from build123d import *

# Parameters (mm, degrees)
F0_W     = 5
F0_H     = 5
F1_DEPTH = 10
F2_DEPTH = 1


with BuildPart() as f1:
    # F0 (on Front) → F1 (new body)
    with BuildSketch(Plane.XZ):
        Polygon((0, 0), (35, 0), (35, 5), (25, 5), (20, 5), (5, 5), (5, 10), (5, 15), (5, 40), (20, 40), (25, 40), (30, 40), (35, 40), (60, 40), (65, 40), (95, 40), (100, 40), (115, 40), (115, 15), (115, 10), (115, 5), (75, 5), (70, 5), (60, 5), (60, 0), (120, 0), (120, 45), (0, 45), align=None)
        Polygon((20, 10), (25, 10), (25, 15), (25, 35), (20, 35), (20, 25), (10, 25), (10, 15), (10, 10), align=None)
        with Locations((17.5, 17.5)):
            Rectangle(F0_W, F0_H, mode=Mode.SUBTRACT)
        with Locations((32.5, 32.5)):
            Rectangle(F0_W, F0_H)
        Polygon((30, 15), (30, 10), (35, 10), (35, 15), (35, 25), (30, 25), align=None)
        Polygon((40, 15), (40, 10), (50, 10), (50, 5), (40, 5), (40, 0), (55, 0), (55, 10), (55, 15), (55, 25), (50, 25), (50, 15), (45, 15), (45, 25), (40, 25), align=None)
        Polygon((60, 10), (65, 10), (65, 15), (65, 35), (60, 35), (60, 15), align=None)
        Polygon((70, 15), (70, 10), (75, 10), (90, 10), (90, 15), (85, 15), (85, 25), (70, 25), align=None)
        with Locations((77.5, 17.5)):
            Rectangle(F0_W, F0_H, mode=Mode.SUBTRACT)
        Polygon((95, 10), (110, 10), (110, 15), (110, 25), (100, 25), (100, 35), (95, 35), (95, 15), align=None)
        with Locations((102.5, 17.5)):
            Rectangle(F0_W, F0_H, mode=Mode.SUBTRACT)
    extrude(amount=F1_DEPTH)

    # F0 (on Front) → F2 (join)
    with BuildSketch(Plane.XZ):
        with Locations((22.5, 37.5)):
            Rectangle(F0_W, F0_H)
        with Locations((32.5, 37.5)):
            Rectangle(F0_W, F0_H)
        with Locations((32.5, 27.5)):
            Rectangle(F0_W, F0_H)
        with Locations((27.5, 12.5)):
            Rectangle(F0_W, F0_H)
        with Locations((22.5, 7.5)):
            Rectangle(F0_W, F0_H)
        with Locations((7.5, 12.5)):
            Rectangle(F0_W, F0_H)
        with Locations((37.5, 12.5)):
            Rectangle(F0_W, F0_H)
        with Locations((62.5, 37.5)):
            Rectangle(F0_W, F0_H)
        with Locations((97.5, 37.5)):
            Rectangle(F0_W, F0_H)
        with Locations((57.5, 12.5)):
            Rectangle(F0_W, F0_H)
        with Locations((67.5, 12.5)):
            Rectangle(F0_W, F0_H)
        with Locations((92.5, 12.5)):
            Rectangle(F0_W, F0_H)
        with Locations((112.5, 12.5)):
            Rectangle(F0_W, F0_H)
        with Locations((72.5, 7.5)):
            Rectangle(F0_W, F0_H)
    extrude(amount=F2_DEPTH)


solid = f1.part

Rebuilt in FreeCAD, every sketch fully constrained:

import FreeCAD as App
import Part
import Sketcher

V = App.Vector

doc = App.newDocument("Part")
params = doc.addObject("Spreadsheet::Sheet", "Params")
for row, (alias, value) in enumerate([
    ("sketch1_width", "35 mm"),
    ("sketch1_width2", "30 mm"),
    ("sketch1_width3", "110 mm"),
    ("sketch1_width4", "55 mm"),
    ("sketch1_width5", "60 mm"),
    ("pad1_length", "10 mm"),
    ("sketch2_width", "5 mm"),
    ("pad2_length", "1 mm"),
], start=1):
    params.set(f"A{row}", alias)
    params.set(f"B{row}", "=" + value)
    params.setAlias(f"B{row}", alias)

body = doc.addObject("PartDesign::Body", "Body")
body.AllowCompound = True

sketch1 = doc.addObject("Sketcher::SketchObject", "Sketch")
body.addObject(sketch1)
sketch1.AttachmentSupport = (doc.XZ_Plane, [""])
sketch1.MapMode = "FlatFace"
sketch1.addGeometry([
    Part.LineSegment(V(0, 0, 0), V(35, 0, 0)),
    Part.LineSegment(V(35, 0, 0), V(35, 5, 0)),
    Part.LineSegment(V(35, 5, 0), V(5, 5, 0)),
    Part.LineSegment(V(5, 5, 0), V(5, 40, 0)),
    Part.LineSegment(V(5, 40, 0), V(115, 40, 0)),
    Part.LineSegment(V(115, 40, 0), V(115, 5, 0)),
    Part.LineSegment(V(115, 5, 0), V(60, 5, 0)),
    Part.LineSegment(V(60, 5, 0), V(60, 0, 0)),
    Part.LineSegment(V(60, 0, 0), V(120, 0, 0)),
    Part.LineSegment(V(120, 0, 0), V(120, 45, 0)),
    Part.LineSegment(V(120, 45, 0), V(0, 45, 0)),
    Part.LineSegment(V(0, 45, 0), V(0, 0, 0)),
    Part.LineSegment(V(25, 10, 0), V(25, 35, 0)),
    Part.LineSegment(V(25, 35, 0), V(20, 35, 0)),
    Part.LineSegment(V(20, 35, 0), V(20, 25, 0)),
    Part.LineSegment(V(20, 25, 0), V(10, 25, 0)),
    Part.LineSegment(V(10, 25, 0), V(10, 10, 0)),
    Part.LineSegment(V(10, 10, 0), V(25, 10, 0)),
    Part.LineSegment(V(20, 15, 0), V(15, 15, 0)),
    Part.LineSegment(V(15, 15, 0), V(15, 20, 0)),
    Part.LineSegment(V(15, 20, 0), V(20, 20, 0)),
    Part.LineSegment(V(20, 20, 0), V(20, 15, 0)),
    Part.LineSegment(V(30, 35, 0), V(30, 30, 0)),
    Part.LineSegment(V(30, 30, 0), V(35, 30, 0)),
    Part.LineSegment(V(35, 30, 0), V(35, 35, 0)),
    Part.LineSegment(V(35, 35, 0), V(30, 35, 0)),
    Part.LineSegment(V(30, 10, 0), V(35, 10, 0)),
    Part.LineSegment(V(35, 10, 0), V(35, 25, 0)),
    Part.LineSegment(V(35, 25, 0), V(30, 25, 0)),
    Part.LineSegment(V(30, 25, 0), V(30, 10, 0)),
    Part.LineSegment(V(40, 10, 0), V(50, 10, 0)),
    Part.LineSegment(V(50, 10, 0), V(50, 5, 0)),
    Part.LineSegment(V(50, 5, 0), V(40, 5, 0)),
    Part.LineSegment(V(40, 5, 0), V(40, 0, 0)),
    Part.LineSegment(V(40, 0, 0), V(55, 0, 0)),
    Part.LineSegment(V(55, 0, 0), V(55, 25, 0)),
    Part.LineSegment(V(55, 25, 0), V(50, 25, 0)),
    Part.LineSegment(V(50, 25, 0), V(50, 15, 0)),
    Part.LineSegment(V(50, 15, 0), V(45, 15, 0)),
    Part.LineSegment(V(45, 15, 0), V(45, 25, 0)),
    Part.LineSegment(V(45, 25, 0), V(40, 25, 0)),
    Part.LineSegment(V(40, 25, 0), V(40, 10, 0)),
    Part.LineSegment(V(60, 10, 0), V(65, 10, 0)),
    Part.LineSegment(V(65, 10, 0), V(65, 35, 0)),
    Part.LineSegment(V(65, 35, 0), V(60, 35, 0)),
    Part.LineSegment(V(60, 35, 0), V(60, 10, 0)),
    Part.LineSegment(V(70, 10, 0), V(90, 10, 0)),
    Part.LineSegment(V(90, 10, 0), V(90, 15, 0)),
    Part.LineSegment(V(90, 15, 0), V(85, 15, 0)),
    Part.LineSegment(V(85, 15, 0), V(85, 25, 0)),
    Part.LineSegment(V(85, 25, 0), V(70, 25, 0)),
    Part.LineSegment(V(70, 25, 0), V(70, 10, 0)),
    Part.LineSegment(V(80, 15, 0), V(75, 15, 0)),
    Part.LineSegment(V(75, 15, 0), V(75, 20, 0)),
    Part.LineSegment(V(75, 20, 0), V(80, 20, 0)),
    Part.LineSegment(V(80, 20, 0), V(80, 15, 0)),
    Part.LineSegment(V(95, 10, 0), V(110, 10, 0)),
    Part.LineSegment(V(110, 10, 0), V(110, 25, 0)),
    Part.LineSegment(V(110, 25, 0), V(100, 25, 0)),
    Part.LineSegment(V(100, 25, 0), V(100, 35, 0)),
    Part.LineSegment(V(100, 35, 0), V(95, 35, 0)),
    Part.LineSegment(V(95, 35, 0), V(95, 10, 0)),
    Part.LineSegment(V(105, 15, 0), V(100, 15, 0)),
    Part.LineSegment(V(100, 15, 0), V(100, 20, 0)),
    Part.LineSegment(V(100, 20, 0), V(105, 20, 0)),
    Part.LineSegment(V(105, 20, 0), V(105, 15, 0)),
], False)
sketch1.addConstraint([
    Sketcher.Constraint("Coincident", 0, 2, 1, 1),
    Sketcher.Constraint("Coincident", 1, 2, 2, 1),
    Sketcher.Constraint("Coincident", 2, 2, 3, 1),
    Sketcher.Constraint("Coincident", 3, 2, 4, 1),
    Sketcher.Constraint("Coincident", 4, 2, 5, 1),
    Sketcher.Constraint("Coincident", 5, 2, 6, 1),
    Sketcher.Constraint("Coincident", 6, 2, 7, 1),
    Sketcher.Constraint("Coincident", 7, 2, 8, 1),
    Sketcher.Constraint("Coincident", 8, 2, 9, 1),
    Sketcher.Constraint("Coincident", 9, 2, 10, 1),
    Sketcher.Constraint("Coincident", 10, 2, 11, 1),
    Sketcher.Constraint("Coincident", 11, 2, 0, 1),
    Sketcher.Constraint("Coincident", 12, 2, 13, 1),
    Sketcher.Constraint("Coincident", 13, 2, 14, 1),
    Sketcher.Constraint("Coincident", 14, 2, 15, 1),
    Sketcher.Constraint("Coincident", 15, 2, 16, 1),
    Sketcher.Constraint("Coincident", 16, 2, 17, 1),
    Sketcher.Constraint("Coincident", 17, 2, 12, 1),
    Sketcher.Constraint("Coincident", 18, 2, 19, 1),
    Sketcher.Constraint("Coincident", 19, 2, 20, 1),
    Sketcher.Constraint("Coincident", 20, 2, 21, 1),
    Sketcher.Constraint("Coincident", 21, 2, 18, 1),
    Sketcher.Constraint("Coincident", 22, 2, 23, 1),
    Sketcher.Constraint("Coincident", 23, 2, 24, 1),
    Sketcher.Constraint("Coincident", 24, 2, 25, 1),
    Sketcher.Constraint("Coincident", 25, 2, 22, 1),
    Sketcher.Constraint("Coincident", 26, 2, 27, 1),
    Sketcher.Constraint("Coincident", 27, 2, 28, 1),
    Sketcher.Constraint("Coincident", 28, 2, 29, 1),
    Sketcher.Constraint("Coincident", 29, 2, 26, 1),
    Sketcher.Constraint("Coincident", 30, 2, 31, 1),
    Sketcher.Constraint("Coincident", 31, 2, 32, 1),
    Sketcher.Constraint("Coincident", 32, 2, 33, 1),
    Sketcher.Constraint("Coincident", 33, 2, 34, 1),
    Sketcher.Constraint("Coincident", 34, 2, 35, 1),
    Sketcher.Constraint("Coincident", 35, 2, 36, 1),
    Sketcher.Constraint("Coincident", 36, 2, 37, 1),
    Sketcher.Constraint("Coincident", 37, 2, 38, 1),
    Sketcher.Constraint("Coincident", 38, 2, 39, 1),
    Sketcher.Constraint("Coincident", 39, 2, 40, 1),
    Sketcher.Constraint("Coincident", 40, 2, 41, 1),
    Sketcher.Constraint("Coincident", 41, 2, 30, 1),
    Sketcher.Constraint("Coincident", 42, 2, 43, 1),
    Sketcher.Constraint("Coincident", 43, 2, 44, 1),
    Sketcher.Constraint("Coincident", 44, 2, 45, 1),
    Sketcher.Constraint("Coincident", 45, 2, 42, 1),
    Sketcher.Constraint("Coincident", 46, 2, 47, 1),
    Sketcher.Constraint("Coincident", 47, 2, 48, 1),
    Sketcher.Constraint("Coincident", 48, 2, 49, 1),
    Sketcher.Constraint("Coincident", 49, 2, 50, 1),
    Sketcher.Constraint("Coincident", 50, 2, 51, 1),
    Sketcher.Constraint("Coincident", 51, 2, 46, 1),
    Sketcher.Constraint("Coincident", 52, 2, 53, 1),
    Sketcher.Constraint("Coincident", 53, 2, 54, 1),
    Sketcher.Constraint("Coincident", 54, 2, 55, 1),
    Sketcher.Constraint("Coincident", 55, 2, 52, 1),
    Sketcher.Constraint("Coincident", 56, 2, 57, 1),
    Sketcher.Constraint("Coincident", 57, 2, 58, 1),
    Sketcher.Constraint("Coincident", 58, 2, 59, 1),
    Sketcher.Constraint("Coincident", 59, 2, 60, 1),
    Sketcher.Constraint("Coincident", 60, 2, 61, 1),
    Sketcher.Constraint("Coincident", 61, 2, 56, 1),
    Sketcher.Constraint("Coincident", 62, 2, 63, 1),
    Sketcher.Constraint("Coincident", 63, 2, 64, 1),
    Sketcher.Constraint("Coincident", 64, 2, 65, 1),
    Sketcher.Constraint("Coincident", 65, 2, 62, 1),
    Sketcher.Constraint("Horizontal", 0),
    Sketcher.Constraint("Vertical", 1),
    Sketcher.Constraint("Horizontal", 2),
    Sketcher.Constraint("Vertical", 3),
    Sketcher.Constraint("Horizontal", 4),
    Sketcher.Constraint("Vertical", 5),
    Sketcher.Constraint("Horizontal", 6),
    Sketcher.Constraint("Vertical", 7),
    Sketcher.Constraint("Horizontal", 8),
    Sketcher.Constraint("Vertical", 9),
    Sketcher.Constraint("Horizontal", 10),
    Sketcher.Constraint("Vertical", 11),
    Sketcher.Constraint("Vertical", 12),
    Sketcher.Constraint("Horizontal", 13),
    Sketcher.Constraint("Vertical", 14),
    Sketcher.Constraint("Horizontal", 15),
    Sketcher.Constraint("Vertical", 16),
    Sketcher.Constraint("Horizontal", 17),
    Sketcher.Constraint("Horizontal", 18),
    Sketcher.Constraint("Vertical", 19),
    Sketcher.Constraint("Horizontal", 20),
    Sketcher.Constraint("Vertical", 21),
    Sketcher.Constraint("Vertical", 22),
    Sketcher.Constraint("Horizontal", 23),
    Sketcher.Constraint("Vertical", 24),
    Sketcher.Constraint("Horizontal", 25),
    Sketcher.Constraint("Horizontal", 26),
    Sketcher.Constraint("Vertical", 27),
    Sketcher.Constraint("Horizontal", 28),
    Sketcher.Constraint("Vertical", 29),
    Sketcher.Constraint("Horizontal", 30),
    Sketcher.Constraint("Vertical", 31),
    Sketcher.Constraint("Horizontal", 32),
    Sketcher.Constraint("Vertical", 33),
    Sketcher.Constraint("Horizontal", 34),
    Sketcher.Constraint("Vertical", 35),
    Sketcher.Constraint("Horizontal", 36),
    Sketcher.Constraint("Vertical", 37),
    Sketcher.Constraint("Horizontal", 38),
    Sketcher.Constraint("Vertical", 39),
    Sketcher.Constraint("Horizontal", 40),
    Sketcher.Constraint("Vertical", 41),
    Sketcher.Constraint("Horizontal", 42),
    Sketcher.Constraint("Vertical", 43),
    Sketcher.Constraint("Horizontal", 44),
    Sketcher.Constraint("Vertical", 45),
    Sketcher.Constraint("Horizontal", 46),
    Sketcher.Constraint("Vertical", 47),
    Sketcher.Constraint("Horizontal", 48),
    Sketcher.Constraint("Vertical", 49),
    Sketcher.Constraint("Horizontal", 50),
    Sketcher.Constraint("Vertical", 51),
    Sketcher.Constraint("Horizontal", 52),
    Sketcher.Constraint("Vertical", 53),
    Sketcher.Constraint("Horizontal", 54),
    Sketcher.Constraint("Vertical", 55),
    Sketcher.Constraint("Horizontal", 56),
    Sketcher.Constraint("Vertical", 57),
    Sketcher.Constraint("Horizontal", 58),
    Sketcher.Constraint("Vertical", 59),
    Sketcher.Constraint("Horizontal", 60),
    Sketcher.Constraint("Vertical", 61),
    Sketcher.Constraint("Horizontal", 62),
    Sketcher.Constraint("Vertical", 63),
    Sketcher.Constraint("Horizontal", 64),
    Sketcher.Constraint("Vertical", 65),
    Sketcher.Constraint("Coincident", 11, 2, -1, 1),
    Sketcher.Constraint("PointOnObject", 7, 2, -1),
    Sketcher.Constraint("PointOnObject", 33, 2, -1),
    Sketcher.Constraint("Horizontal", 2, 2, 5, 2),
    Sketcher.Constraint("Horizontal", 13, 2, 24, 2),
    Sketcher.Constraint("Horizontal", 17, 2, 26, 2),
    Sketcher.Constraint("Horizontal", 15, 2, 27, 2),
    Sketcher.Constraint("Horizontal", 29, 2, 30, 2),
    Sketcher.Constraint("Horizontal", 6, 2, 31, 2),
    Sketcher.Constraint("Horizontal", 28, 2, 35, 2),
    Sketcher.Constraint("Horizontal", 21, 2, 37, 2),
    Sketcher.Constraint("Horizontal", 36, 2, 39, 2),
    Sketcher.Constraint("Horizontal", 41, 2, 42, 2),
    Sketcher.Constraint("Horizontal", 25, 2, 43, 2),
    Sketcher.Constraint("Horizontal", 45, 2, 46, 2),
    Sketcher.Constraint("Horizontal", 38, 2, 47, 2),
    Sketcher.Constraint("Horizontal", 40, 2, 49, 2),
    Sketcher.Constraint("Horizontal", 48, 2, 52, 2),
    Sketcher.Constraint("Horizontal", 20, 2, 53, 2),
    Sketcher.Constraint("Horizontal", 51, 2, 56, 2),
    Sketcher.Constraint("Horizontal", 50, 2, 57, 2),
    Sketcher.Constraint("Horizontal", 44, 2, 59, 2),
    Sketcher.Constraint("Horizontal", 55, 2, 62, 2),
    Sketcher.Constraint("Horizontal", 54, 2, 63, 2),
    Sketcher.Constraint("Vertical", 14, 2, 20, 2),
    Sketcher.Constraint("Vertical", 1, 2, 23, 2),
    Sketcher.Constraint("Vertical", 24, 2, 26, 2),
    Sketcher.Constraint("Vertical", 25, 2, 28, 2),
    Sketcher.Constraint("Vertical", 31, 2, 36, 2),
    Sketcher.Constraint("Vertical", 33, 2, 40, 2),
    Sketcher.Constraint("Vertical", 7, 2, 44, 2),
    Sketcher.Constraint("Vertical", 59, 2, 62, 2),
    Sketcher.Constraint("Equal", 13, 18),
    Sketcher.Constraint("Equal", 20, 23),
    Sketcher.Constraint("Equal", 15, 30),
    Sketcher.Constraint("Equal", 17, 34),
    Sketcher.Constraint("Equal", 36, 38),
    Sketcher.Constraint("Equal", 38, 40),
    Sketcher.Constraint("Equal", 40, 42),
    Sketcher.Constraint("Equal", 44, 48),
    Sketcher.Constraint("Equal", 34, 50),
    Sketcher.Constraint("Equal", 48, 52),
    Sketcher.Constraint("Equal", 50, 56),
    Sketcher.Constraint("Equal", 32, 58),
    Sketcher.Constraint("Equal", 60, 62),
    Sketcher.Constraint("Equal", 64, 1),
    Sketcher.Constraint("Equal", 0, 3),
    Sketcher.Constraint("Equal", 58, 14),
    Sketcher.Constraint("Equal", 56, 16),
    Sketcher.Constraint("Equal", 7, 19),
    Sketcher.Constraint("Equal", 21, 22),
    Sketcher.Constraint("Equal", 24, 31),
    Sketcher.Constraint("Equal", 14, 37),
    Sketcher.Constraint("DistanceX", 0, 1, 0, 2, 35.0),
    Sketcher.Constraint("DistanceX", 2, 2, 2, 1, 30.0),
    Sketcher.Constraint("DistanceX", 4, 1, 4, 2, 110.0),
    Sketcher.Constraint("DistanceX", 6, 2, 6, 1, 55.0),
    Sketcher.Constraint("DistanceX", 8, 1, 8, 2, 60.0),
    Sketcher.Constraint("DistanceX", 13, 2, 13, 1, 5.0),
    Sketcher.Constraint("DistanceY", 9, 1, 9, 2, 45.0),
    Sketcher.Constraint("DistanceX", -1, 1, 12, 2, 25.0),
    Sketcher.Constraint("DistanceX", -1, 1, 30, 2, 50.0),
    Sketcher.Constraint("DistanceX", -1, 1, 46, 2, 90.0),
    Sketcher.Constraint("DistanceX", -1, 1, 52, 2, 75.0),
    Sketcher.Constraint("DistanceX", -1, 1, 56, 2, 110.0),
])
sketch1.setExpression("Constraints[185]", "Params.sketch1_width")
sketch1.setExpression("Constraints[186]", "Params.sketch1_width2")
sketch1.setExpression("Constraints[187]", "Params.sketch1_width3")
sketch1.setExpression("Constraints[188]", "Params.sketch1_width4")
sketch1.setExpression("Constraints[189]", "Params.sketch1_width5")
pad1 = doc.addObject("PartDesign::Pad", "Pad")
body.addObject(pad1)
pad1.Profile = sketch1
pad1.setExpression("Length", "Params.pad1_length")

sketch2 = doc.addObject("Sketcher::SketchObject", "Sketch001")
body.addObject(sketch2)
sketch2.AttachmentSupport = (doc.XZ_Plane, [""])
sketch2.MapMode = "FlatFace"
sketch2.addGeometry([
    Part.LineSegment(V(20, 40, 0), V(20, 35, 0)),
    Part.LineSegment(V(20, 35, 0), V(25, 35, 0)),
    Part.LineSegment(V(25, 35, 0), V(25, 40, 0)),
    Part.LineSegment(V(25, 40, 0), V(20, 40, 0)),
    Part.LineSegment(V(30, 40, 0), V(30, 35, 0)),
    Part.LineSegment(V(30, 35, 0), V(35, 35, 0)),
    Part.LineSegment(V(35, 35, 0), V(35, 40, 0)),
    Part.LineSegment(V(35, 40, 0), V(30, 40, 0)),
    Part.LineSegment(V(30, 30, 0), V(30, 25, 0)),
    Part.LineSegment(V(30, 25, 0), V(35, 25, 0)),
    Part.LineSegment(V(35, 25, 0), V(35, 30, 0)),
    Part.LineSegment(V(35, 30, 0), V(30, 30, 0)),
    Part.LineSegment(V(25, 15, 0), V(25, 10, 0)),
    Part.LineSegment(V(25, 10, 0), V(30, 10, 0)),
    Part.LineSegment(V(30, 10, 0), V(30, 15, 0)),
    Part.LineSegment(V(30, 15, 0), V(25, 15, 0)),
    Part.LineSegment(V(20, 10, 0), V(20, 5, 0)),
    Part.LineSegment(V(20, 5, 0), V(25, 5, 0)),
    Part.LineSegment(V(25, 5, 0), V(25, 10, 0)),
    Part.LineSegment(V(25, 10, 0), V(20, 10, 0)),
    Part.LineSegment(V(5, 15, 0), V(5, 10, 0)),
    Part.LineSegment(V(5, 10, 0), V(10, 10, 0)),
    Part.LineSegment(V(10, 10, 0), V(10, 15, 0)),
    Part.LineSegment(V(10, 15, 0), V(5, 15, 0)),
    Part.LineSegment(V(35, 15, 0), V(35, 10, 0)),
    Part.LineSegment(V(35, 10, 0), V(40, 10, 0)),
    Part.LineSegment(V(40, 10, 0), V(40, 15, 0)),
    Part.LineSegment(V(40, 15, 0), V(35, 15, 0)),
    Part.LineSegment(V(60, 40, 0), V(60, 35, 0)),
    Part.LineSegment(V(60, 35, 0), V(65, 35, 0)),
    Part.LineSegment(V(65, 35, 0), V(65, 40, 0)),
    Part.LineSegment(V(65, 40, 0), V(60, 40, 0)),
    Part.LineSegment(V(95, 40, 0), V(95, 35, 0)),
    Part.LineSegment(V(95, 35, 0), V(100, 35, 0)),
    Part.LineSegment(V(100, 35, 0), V(100, 40, 0)),
    Part.LineSegment(V(100, 40, 0), V(95, 40, 0)),
    Part.LineSegment(V(55, 15, 0), V(55, 10, 0)),
    Part.LineSegment(V(55, 10, 0), V(60, 10, 0)),
    Part.LineSegment(V(60, 10, 0), V(60, 15, 0)),
    Part.LineSegment(V(60, 15, 0), V(55, 15, 0)),
    Part.LineSegment(V(65, 15, 0), V(65, 10, 0)),
    Part.LineSegment(V(65, 10, 0), V(70, 10, 0)),
    Part.LineSegment(V(70, 10, 0), V(70, 15, 0)),
    Part.LineSegment(V(70, 15, 0), V(65, 15, 0)),
    Part.LineSegment(V(90, 15, 0), V(90, 10, 0)),
    Part.LineSegment(V(90, 10, 0), V(95, 10, 0)),
    Part.LineSegment(V(95, 10, 0), V(95, 15, 0)),
    Part.LineSegment(V(95, 15, 0), V(90, 15, 0)),
    Part.LineSegment(V(110, 15, 0), V(110, 10, 0)),
    Part.LineSegment(V(110, 10, 0), V(115, 10, 0)),
    Part.LineSegment(V(115, 10, 0), V(115, 15, 0)),
    Part.LineSegment(V(115, 15, 0), V(110, 15, 0)),
    Part.LineSegment(V(70, 10, 0), V(70, 5, 0)),
    Part.LineSegment(V(70, 5, 0), V(75, 5, 0)),
    Part.LineSegment(V(75, 5, 0), V(75, 10, 0)),
    Part.LineSegment(V(75, 10, 0), V(70, 10, 0)),
], False)
sketch2.addConstraint([
    Sketcher.Constraint("Coincident", 0, 2, 1, 1),
    Sketcher.Constraint("Coincident", 1, 2, 2, 1),
    Sketcher.Constraint("Coincident", 2, 2, 3, 1),
    Sketcher.Constraint("Coincident", 3, 2, 0, 1),
    Sketcher.Constraint("Coincident", 4, 2, 5, 1),
    Sketcher.Constraint("Coincident", 5, 2, 6, 1),
    Sketcher.Constraint("Coincident", 6, 2, 7, 1),
    Sketcher.Constraint("Coincident", 7, 2, 4, 1),
    Sketcher.Constraint("Coincident", 8, 2, 9, 1),
    Sketcher.Constraint("Coincident", 9, 2, 10, 1),
    Sketcher.Constraint("Coincident", 10, 2, 11, 1),
    Sketcher.Constraint("Coincident", 11, 2, 8, 1),
    Sketcher.Constraint("Coincident", 12, 2, 13, 1),
    Sketcher.Constraint("Coincident", 13, 2, 14, 1),
    Sketcher.Constraint("Coincident", 14, 2, 15, 1),
    Sketcher.Constraint("Coincident", 15, 2, 12, 1),
    Sketcher.Constraint("Coincident", 16, 2, 17, 1),
    Sketcher.Constraint("Coincident", 17, 2, 18, 1),
    Sketcher.Constraint("Coincident", 18, 2, 19, 1),
    Sketcher.Constraint("Coincident", 19, 2, 16, 1),
    Sketcher.Constraint("Coincident", 20, 2, 21, 1),
    Sketcher.Constraint("Coincident", 21, 2, 22, 1),
    Sketcher.Constraint("Coincident", 22, 2, 23, 1),
    Sketcher.Constraint("Coincident", 23, 2, 20, 1),
    Sketcher.Constraint("Coincident", 24, 2, 25, 1),
    Sketcher.Constraint("Coincident", 25, 2, 26, 1),
    Sketcher.Constraint("Coincident", 26, 2, 27, 1),
    Sketcher.Constraint("Coincident", 27, 2, 24, 1),
    Sketcher.Constraint("Coincident", 28, 2, 29, 1),
    Sketcher.Constraint("Coincident", 29, 2, 30, 1),
    Sketcher.Constraint("Coincident", 30, 2, 31, 1),
    Sketcher.Constraint("Coincident", 31, 2, 28, 1),
    Sketcher.Constraint("Coincident", 32, 2, 33, 1),
    Sketcher.Constraint("Coincident", 33, 2, 34, 1),
    Sketcher.Constraint("Coincident", 34, 2, 35, 1),
    Sketcher.Constraint("Coincident", 35, 2, 32, 1),
    Sketcher.Constraint("Coincident", 36, 2, 37, 1),
    Sketcher.Constraint("Coincident", 37, 2, 38, 1),
    Sketcher.Constraint("Coincident", 38, 2, 39, 1),
    Sketcher.Constraint("Coincident", 39, 2, 36, 1),
    Sketcher.Constraint("Coincident", 40, 2, 41, 1),
    Sketcher.Constraint("Coincident", 41, 2, 42, 1),
    Sketcher.Constraint("Coincident", 42, 2, 43, 1),
    Sketcher.Constraint("Coincident", 43, 2, 40, 1),
    Sketcher.Constraint("Coincident", 44, 2, 45, 1),
    Sketcher.Constraint("Coincident", 45, 2, 46, 1),
    Sketcher.Constraint("Coincident", 46, 2, 47, 1),
    Sketcher.Constraint("Coincident", 47, 2, 44, 1),
    Sketcher.Constraint("Coincident", 48, 2, 49, 1),
    Sketcher.Constraint("Coincident", 49, 2, 50, 1),
    Sketcher.Constraint("Coincident", 50, 2, 51, 1),
    Sketcher.Constraint("Coincident", 51, 2, 48, 1),
    Sketcher.Constraint("Coincident", 52, 2, 53, 1),
    Sketcher.Constraint("Coincident", 53, 2, 54, 1),
    Sketcher.Constraint("Coincident", 54, 2, 55, 1),
    Sketcher.Constraint("Coincident", 55, 2, 52, 1),
    Sketcher.Constraint("Vertical", 0),
    Sketcher.Constraint("Horizontal", 1),
    Sketcher.Constraint("Vertical", 2),
    Sketcher.Constraint("Horizontal", 3),
    Sketcher.Constraint("Vertical", 4),
    Sketcher.Constraint("Horizontal", 5),
    Sketcher.Constraint("Vertical", 6),
    Sketcher.Constraint("Horizontal", 7),
    Sketcher.Constraint("Vertical", 8),
    Sketcher.Constraint("Horizontal", 9),
    Sketcher.Constraint("Vertical", 10),
    Sketcher.Constraint("Horizontal", 11),
    Sketcher.Constraint("Vertical", 12),
    Sketcher.Constraint("Horizontal", 13),
    Sketcher.Constraint("Vertical", 14),
    Sketcher.Constraint("Horizontal", 15),
    Sketcher.Constraint("Vertical", 16),
    Sketcher.Constraint("Horizontal", 17),
    Sketcher.Constraint("Vertical", 18),
    Sketcher.Constraint("Horizontal", 19),
    Sketcher.Constraint("Vertical", 20),
    Sketcher.Constraint("Horizontal", 21),
    Sketcher.Constraint("Vertical", 22),
    Sketcher.Constraint("Horizontal", 23),
    Sketcher.Constraint("Vertical", 24),
    Sketcher.Constraint("Horizontal", 25),
    Sketcher.Constraint("Vertical", 26),
    Sketcher.Constraint("Horizontal", 27),
    Sketcher.Constraint("Vertical", 28),
    Sketcher.Constraint("Horizontal", 29),
    Sketcher.Constraint("Vertical", 30),
    Sketcher.Constraint("Horizontal", 31),
    Sketcher.Constraint("Vertical", 32),
    Sketcher.Constraint("Horizontal", 33),
    Sketcher.Constraint("Vertical", 34),
    Sketcher.Constraint("Horizontal", 35),
    Sketcher.Constraint("Vertical", 36),
    Sketcher.Constraint("Horizontal", 37),
    Sketcher.Constraint("Vertical", 38),
    Sketcher.Constraint("Horizontal", 39),
    Sketcher.Constraint("Vertical", 40),
    Sketcher.Constraint("Horizontal", 41),
    Sketcher.Constraint("Vertical", 42),
    Sketcher.Constraint("Horizontal", 43),
    Sketcher.Constraint("Vertical", 44),
    Sketcher.Constraint("Horizontal", 45),
    Sketcher.Constraint("Vertical", 46),
    Sketcher.Constraint("Horizontal", 47),
    Sketcher.Constraint("Vertical", 48),
    Sketcher.Constraint("Horizontal", 49),
    Sketcher.Constraint("Vertical", 50),
    Sketcher.Constraint("Horizontal", 51),
    Sketcher.Constraint("Vertical", 52),
    Sketcher.Constraint("Horizontal", 53),
    Sketcher.Constraint("Vertical", 54),
    Sketcher.Constraint("Horizontal", 55),
    Sketcher.Constraint("Coincident", 18, 2, 12, 2),
    Sketcher.Constraint("Coincident", 55, 2, 41, 2),
    Sketcher.Constraint("Horizontal", 1, 2, 4, 2),
    Sketcher.Constraint("Horizontal", 3, 2, 6, 2),
    Sketcher.Constraint("Horizontal", 19, 2, 20, 2),
    Sketcher.Constraint("Horizontal", 15, 2, 22, 2),
    Sketcher.Constraint("Horizontal", 21, 2, 24, 2),
    Sketcher.Constraint("Horizontal", 23, 2, 26, 2),
    Sketcher.Constraint("Horizontal", 5, 2, 28, 2),
    Sketcher.Constraint("Horizontal", 7, 2, 30, 2),
    Sketcher.Constraint("Horizontal", 29, 2, 32, 2),
    Sketcher.Constraint("Horizontal", 31, 2, 34, 2),
    Sketcher.Constraint("Horizontal", 25, 2, 36, 2),
    Sketcher.Constraint("Horizontal", 27, 2, 38, 2),
    Sketcher.Constraint("Horizontal", 37, 2, 40, 2),
    Sketcher.Constraint("Horizontal", 39, 2, 42, 2),
    Sketcher.Constraint("Horizontal", 41, 2, 44, 2),
    Sketcher.Constraint("Horizontal", 43, 2, 46, 2),
    Sketcher.Constraint("Horizontal", 45, 2, 48, 2),
    Sketcher.Constraint("Horizontal", 47, 2, 50, 2),
    Sketcher.Constraint("Horizontal", 17, 2, 52, 2),
    Sketcher.Constraint("Vertical", 7, 2, 8, 2),
    Sketcher.Constraint("Vertical", 6, 2, 9, 2),
    Sketcher.Constraint("Vertical", 2, 2, 12, 2),
    Sketcher.Constraint("Vertical", 11, 2, 13, 2),
    Sketcher.Constraint("Vertical", 3, 2, 16, 2),
    Sketcher.Constraint("Vertical", 10, 2, 24, 2),
    Sketcher.Constraint("Vertical", 31, 2, 37, 2),
    Sketcher.Constraint("Vertical", 30, 2, 40, 2),
    Sketcher.Constraint("Vertical", 35, 2, 45, 2),
    Sketcher.Constraint("Equal", 3, 5),
    Sketcher.Constraint("Equal", 11, 13),
    Sketcher.Constraint("Equal", 19, 21),
    Sketcher.Constraint("Equal", 23, 25),
    Sketcher.Constraint("Equal", 27, 29),
    Sketcher.Constraint("Equal", 31, 33),
    Sketcher.Constraint("Equal", 35, 37),
    Sketcher.Constraint("Equal", 39, 41),
    Sketcher.Constraint("Equal", 43, 45),
    Sketcher.Constraint("Equal", 47, 49),
    Sketcher.Constraint("Equal", 51, 53),
    Sketcher.Constraint("Equal", 55, 0),
    Sketcher.Constraint("Equal", 6, 8),
    Sketcher.Constraint("Equal", 10, 12),
    Sketcher.Constraint("Equal", 14, 16),
    Sketcher.Constraint("DistanceX", 1, 1, 1, 2, 5.0),
    Sketcher.Constraint("DistanceX", -1, 1, 0, 2, 20.0),
    Sketcher.Constraint("DistanceY", -1, 1, 0, 2, 35.0),
    Sketcher.Constraint("DistanceY", -1, 1, 8, 2, 25.0),
    Sketcher.Constraint("DistanceY", -1, 1, 12, 2, 10.0),
    Sketcher.Constraint("DistanceX", -1, 1, 20, 2, 5.0),
    Sketcher.Constraint("DistanceX", -1, 1, 28, 2, 60.0),
    Sketcher.Constraint("DistanceX", -1, 1, 32, 2, 95.0),
    Sketcher.Constraint("DistanceX", -1, 1, 48, 2, 110.0),
])
sketch2.setExpression("Constraints[157]", "Params.sketch2_width")
pad2 = doc.addObject("PartDesign::Pad", "Pad001")
body.addObject(pad2)
pad2.Profile = sketch2
pad2.setExpression("Length", "Params.pad2_length")

doc.recompute()
